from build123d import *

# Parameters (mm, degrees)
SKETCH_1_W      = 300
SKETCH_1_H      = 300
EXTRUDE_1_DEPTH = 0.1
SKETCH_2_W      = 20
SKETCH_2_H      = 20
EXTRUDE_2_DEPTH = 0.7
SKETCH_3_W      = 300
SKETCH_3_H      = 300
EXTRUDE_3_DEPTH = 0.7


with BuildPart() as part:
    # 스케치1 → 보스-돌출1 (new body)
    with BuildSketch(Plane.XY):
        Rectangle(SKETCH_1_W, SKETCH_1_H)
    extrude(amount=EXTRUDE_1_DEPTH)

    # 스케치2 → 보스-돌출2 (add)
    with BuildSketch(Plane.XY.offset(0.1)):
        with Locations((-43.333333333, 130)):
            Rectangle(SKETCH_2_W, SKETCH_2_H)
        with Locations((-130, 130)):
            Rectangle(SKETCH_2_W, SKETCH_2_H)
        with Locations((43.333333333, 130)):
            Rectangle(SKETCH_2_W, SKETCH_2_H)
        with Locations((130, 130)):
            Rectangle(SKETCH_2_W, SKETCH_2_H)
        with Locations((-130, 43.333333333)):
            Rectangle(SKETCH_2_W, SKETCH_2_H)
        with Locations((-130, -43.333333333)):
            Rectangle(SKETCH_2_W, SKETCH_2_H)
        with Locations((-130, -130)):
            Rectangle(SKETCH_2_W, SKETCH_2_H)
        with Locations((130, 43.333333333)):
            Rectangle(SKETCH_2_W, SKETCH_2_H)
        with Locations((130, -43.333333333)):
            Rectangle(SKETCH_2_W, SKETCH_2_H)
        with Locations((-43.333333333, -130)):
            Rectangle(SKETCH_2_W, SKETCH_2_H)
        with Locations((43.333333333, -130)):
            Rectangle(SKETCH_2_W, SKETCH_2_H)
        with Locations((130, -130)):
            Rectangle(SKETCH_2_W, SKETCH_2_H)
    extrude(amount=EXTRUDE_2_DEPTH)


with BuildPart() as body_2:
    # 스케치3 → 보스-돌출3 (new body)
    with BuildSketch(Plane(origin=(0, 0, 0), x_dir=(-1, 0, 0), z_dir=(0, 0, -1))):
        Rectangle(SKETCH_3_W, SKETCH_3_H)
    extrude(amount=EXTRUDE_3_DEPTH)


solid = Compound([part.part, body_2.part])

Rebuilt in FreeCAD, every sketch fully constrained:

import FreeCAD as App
import Part
import Sketcher
from FreeCAD import Vector
Q = App.Units.Quantity

doc = App.newDocument("Part")
body = doc.addObject("PartDesign::Body", "Body")

# Sketch on XY plane
sketch1 = body.newObject("Sketcher::SketchObject", "Sketch")
sketch1.AttachmentSupport = (doc.getObject("XY_Plane"), [""])
sketch1.MapMode = "FlatFace"
sketch1.addGeometry([
    Part.LineSegment(Vector(-150, 150, 0), Vector(-150, -150, 0)),
    Part.LineSegment(Vector(-150, -150, 0), Vector(150, -150, 0)),
    Part.LineSegment(Vector(150, -150, 0), Vector(150, 150, 0)),
    Part.LineSegment(Vector(150, 150, 0), Vector(-150, 150, 0)),
], False)
sketch1.addConstraint([
    Sketcher.Constraint("Coincident", 0, 2, 1, 1),
    Sketcher.Constraint("Coincident", 1, 2, 2, 1),
    Sketcher.Constraint("Coincident", 2, 2, 3, 1),
    Sketcher.Constraint("Coincident", 3, 2, 0, 1),
    Sketcher.Constraint("Vertical", 0),
    Sketcher.Constraint("Horizontal", 1),
    Sketcher.Constraint("Vertical", 2),
    Sketcher.Constraint("Horizontal", 3),
    Sketcher.Constraint("Symmetric", 0, 2, 2, 2, -1, 1),
    Sketcher.Constraint("Equal", 3, 0),
    Sketcher.Constraint("DistanceX", 1, 1, 1, 2, Q("300 mm")),
])
pad1 = body.newObject("PartDesign::Pad", "Pad")
pad1.Profile = sketch1
pad1.Length = 0.1

# Sketch on XY plane
sketch2 = body.newObject("Sketcher::SketchObject", "Sketch001")
sketch2.AttachmentSupport = (doc.getObject("XY_Plane"), [""])
sketch2.MapMode = "FlatFace"
sketch2.AttachmentOffset = App.Placement(Vector(0, 0, 0.1), App.Rotation())
sketch2.addGeometry([
    Part.LineSegment(Vector(-53, 140, 0), Vector(-53, 120, 0)),  # 0
    Part.LineSegment(Vector(-53, 120, 0), Vector(-33, 120, 0)),  # 1
    Part.LineSegment(Vector(-33, 120, 0), Vector(-33, 140, 0)),  # 2
    Part.LineSegment(Vector(-33, 140, 0), Vector(-53, 140, 0)),  # 3
    Part.LineSegment(Vector(-140, 140, 0), Vector(-140, 120, 0)),  # 4
    Part.LineSegment(Vector(-140, 120, 0), Vector(-120, 120, 0)),  # 5
    Part.LineSegment(Vector(-120, 120, 0), Vector(-120, 140, 0)),  # 6
    Part.LineSegment(Vector(-120, 140, 0), Vector(-140, 140, 0)),  # 7
    Part.LineSegment(Vector(33, 140, 0), Vector(33, 120, 0)),  # 8
    Part.LineSegment(Vector(33, 120, 0), Vector(53, 120, 0)),  # 9
    Part.LineSegment(Vector(53, 120, 0), Vector(53, 140, 0)),  # 10
    Part.LineSegment(Vector(53, 140, 0), Vector(33, 140, 0)),  # 11
    Part.LineSegment(Vector(120, 140, 0), Vector(120, 120, 0)),  # 12
    Part.LineSegment(Vector(120, 120, 0), Vector(140, 120, 0)),  # 13
    Part.LineSegment(Vector(140, 120, 0), Vector(140, 140, 0)),  # 14
    Part.LineSegment(Vector(140, 140, 0), Vector(120, 140, 0)),  # 15
    Part.LineSegment(Vector(-140, 53, 0), Vector(-140, 33, 0)),  # 16
    Part.LineSegment(Vector(-140, 33, 0), Vector(-120, 33, 0)),  # 17
    Part.LineSegment(Vector(-120, 33, 0), Vector(-120, 53, 0)),  # 18
    Part.LineSegment(Vector(-120, 53, 0), Vector(-140, 53, 0)),  # 19
    Part.LineSegment(Vector(-140, -33, 0), Vector(-140, -53, 0)),  # 20
    Part.LineSegment(Vector(-140, -53, 0), Vector(-120, -53, 0)),  # 21
    Part.LineSegment(Vector(-120, -53, 0), Vector(-120, -33, 0)),  # 22
    Part.LineSegment(Vector(-120, -33, 0), Vector(-140, -33, 0)),  # 23
    Part.LineSegment(Vector(-140, -120, 0), Vector(-140, -140, 0)),  # 24
    Part.LineSegment(Vector(-140, -140, 0), Vector(-120, -140, 0)),  # 25
    Part.LineSegment(Vector(-120, -140, 0), Vector(-120, -120, 0)),  # 26
    Part.LineSegment(Vector(-120, -120, 0), Vector(-140, -120, 0)),  # 27
    Part.LineSegment(Vector(120, 53, 0), Vector(120, 33, 0)),  # 28
    Part.LineSegment(Vector(120, 33, 0), Vector(140, 33, 0)),  # 29
    Part.LineSegment(Vector(140, 33, 0), Vector(140, 53, 0)),  # 30
    Part.LineSegment(Vector(140, 53, 0), Vector(120, 53, 0)),  # 31
    Part.LineSegment(Vector(120, -33, 0), Vector(120, -53, 0)),  # 32
    Part.LineSegment(Vector(120, -53, 0), Vector(140, -53, 0)),  # 33
    Part.LineSegment(Vector(140, -53, 0), Vector(140, -33, 0)),  # 34
    Part.LineSegment(Vector(140, -33, 0), Vector(120, -33, 0)),  # 35
    Part.LineSegment(Vector(-53, -120, 0), Vector(-53, -140, 0)),  # 36
    Part.LineSegment(Vector(-53, -140, 0), Vector(-33, -140, 0)),  # 37
    Part.LineSegment(Vector(-33, -140, 0), Vector(-33, -120, 0)),  # 38
    Part.LineSegment(Vector(-33, -120, 0), Vector(-53, -120, 0)),  # 39
    Part.LineSegment(Vector(33, -120, 0), Vector(33, -140, 0)),  # 40
    Part.LineSegment(Vector(33, -140, 0), Vector(53, -140, 0)),  # 41
    Part.LineSegment(Vector(53, -140, 0), Vector(53, -120, 0)),  # 42
    Part.LineSegment(Vector(53, -120, 0), Vector(33, -120, 0)),  # 43
    Part.LineSegment(Vector(120, -120, 0), Vector(120, -140, 0)),  # 44
    Part.LineSegment(Vector(120, -140, 0), Vector(140, -140, 0)),  # 45
    Part.LineSegment(Vector(140, -140, 0), Vector(140, -120, 0)),  # 46
    Part.LineSegment(Vector(140, -120, 0), Vector(120, -120, 0)),  # 47
], False)
sketch2.addConstraint([
    Sketcher.Constraint("Coincident", 0, 2, 1, 1),
    Sketcher.Constraint("Coincident", 1, 2, 2, 1),
    Sketcher.Constraint("Coincident", 2, 2, 3, 1),
    Sketcher.Constraint("Coincident", 3, 2, 0, 1),
    Sketcher.Constraint("Coincident", 4, 2, 5, 1),
    Sketcher.Constraint("Coincident", 5, 2, 6, 1),
    Sketcher.Constraint("Coincident", 6, 2, 7, 1),
    Sketcher.Constraint("Coincident", 7, 2, 4, 1),
    Sketcher.Constraint("Coincident", 8, 2, 9, 1),
    Sketcher.Constraint("Coincident", 9, 2, 10, 1),
    Sketcher.Constraint("Coincident", 10, 2, 11, 1),
    Sketcher.Constraint("Coincident", 11, 2, 8, 1),
    Sketcher.Constraint("Coincident", 12, 2, 13, 1),
    Sketcher.Constraint("Coincident", 13, 2, 14, 1),
    Sketcher.Constraint("Coincident", 14, 2, 15, 1),
    Sketcher.Constraint("Coincident", 15, 2, 12, 1),
    Sketcher.Constraint("Coincident", 16, 2, 17, 1),
    Sketcher.Constraint("Coincident", 17, 2, 18, 1),
    Sketcher.Constraint("Coincident", 18, 2, 19, 1),
    Sketcher.Constraint("Coincident", 19, 2, 16, 1),
    Sketcher.Constraint("Coincident", 20, 2, 21, 1),
    Sketcher.Constraint("Coincident", 21, 2, 22, 1),
    Sketcher.Constraint("Coincident", 22, 2, 23, 1),
    Sketcher.Constraint("Coincident", 23, 2, 20, 1),
    Sketcher.Constraint("Coincident", 24, 2, 25, 1),
    Sketcher.Constraint("Coincident", 25, 2, 26, 1),
    Sketcher.Constraint("Coincident", 26, 2, 27, 1),
    Sketcher.Constraint("Coincident", 27, 2, 24, 1),
    Sketcher.Constraint("Coincident", 28, 2, 29, 1),
    Sketcher.Constraint("Coincident", 29, 2, 30, 1),
    Sketcher.Constraint("Coincident", 30, 2, 31, 1),
    Sketcher.Constraint("Coincident", 31, 2, 28, 1),
    Sketcher.Constraint("Coincident", 32, 2, 33, 1),
    Sketcher.Constraint("Coincident", 33, 2, 34, 1),
    Sketcher.Constraint("Coincident", 34, 2, 35, 1),
    Sketcher.Constraint("Coincident", 35, 2, 32, 1),
    Sketcher.Constraint("Coincident", 36, 2, 37, 1),
    Sketcher.Constraint("Coincident", 37, 2, 38, 1),
    Sketcher.Constraint("Coincident", 38, 2, 39, 1),
    Sketcher.Constraint("Coincident", 39, 2, 36, 1),
    Sketcher.Constraint("Coincident", 40, 2, 41, 1),
    Sketcher.Constraint("Coincident", 41, 2, 42, 1),
    Sketcher.Constraint("Coincident", 42, 2, 43, 1),
    Sketcher.Constraint("Coincident", 43, 2, 40, 1),
    Sketcher.Constraint("Coincident", 44, 2, 45, 1),
    Sketcher.Constraint("Coincident", 45, 2, 46, 1),
    Sketcher.Constraint("Coincident", 46, 2, 47, 1),
    Sketcher.Constraint("Coincident", 47, 2, 44, 1),
    Sketcher.Constraint("Vertical", 0),
    Sketcher.Constraint("Horizontal", 1),
    Sketcher.Constraint("Vertical", 2),
    Sketcher.Constraint("Horizontal", 3),
    Sketcher.Constraint("Vertical", 4),
    Sketcher.Constraint("Horizontal", 5),
    Sketcher.Constraint("Vertical", 6),
    Sketcher.Constraint("Horizontal", 7),
    Sketcher.Constraint("Vertical", 8),
    Sketcher.Constraint("Horizontal", 9),
    Sketcher.Constraint("Vertical", 10),
    Sketcher.Constraint("Horizontal", 11),
    Sketcher.Constraint("Vertical", 12),
    Sketcher.Constraint("Horizontal", 13),
    Sketcher.Constraint("Vertical", 14),
    Sketcher.Constraint("Horizontal", 15),
    Sketcher.Constraint("Vertical", 16),
    Sketcher.Constraint("Horizontal", 17),
    Sketcher.Constraint("Vertical", 18),
    Sketcher.Constraint("Horizontal", 19),
    Sketcher.Constraint("Vertical", 20),
    Sketcher.Constraint("Horizontal", 21),
    Sketcher.Constraint("Vertical", 22),
    Sketcher.Constraint("Horizontal", 23),
    Sketcher.Constraint("Vertical", 24),
    Sketcher.Constraint("Horizontal", 25),
    Sketcher.Constraint("Vertical", 26),
    Sketcher.Constraint("Horizontal", 27),
    Sketcher.Constraint("Vertical", 28),
    Sketcher.Constraint("Horizontal", 29),
    Sketcher.Constraint("Vertical", 30),
    Sketcher.Constraint("Horizontal", 31),
    Sketcher.Constraint("Vertical", 32),
    Sketcher.Constraint("Horizontal", 33),
    Sketcher.Constraint("Vertical", 34),
    Sketcher.Constraint("Horizontal", 35),
    Sketcher.Constraint("Vertical", 36),
    Sketcher.Constraint("Horizontal", 37),
    Sketcher.Constraint("Vertical", 38),
    Sketcher.Constraint("Horizontal", 39),
    Sketcher.Constraint("Vertical", 40),
    Sketcher.Constraint("Horizontal", 41),
    Sketcher.Constraint("Vertical", 42),
    Sketcher.Constraint("Horizontal", 43),
    Sketcher.Constraint("Vertical", 44),
    Sketcher.Constraint("Horizontal", 45),
    Sketcher.Constraint("Vertical", 46),
    Sketcher.Constraint("Horizontal", 47),
    Sketcher.Constraint("Symmetric", 14, 2, 24, 2, -1, 1),
    Sketcher.Constraint("Symmetric", 12, 2, 26, 2, -1, 1),
    Sketcher.Constraint("Symmetric", 22, 2, 28, 2, -1, 1),
    Sketcher.Constraint("Symmetric", 20, 2, 30, 2, -1, 1),
    Sketcher.Constraint("Symmetric", 18, 2, 32, 2, -1, 1),
    Sketcher.Constraint("Symmetric", 16, 2, 34, 2, -1, 1),
    Sketcher.Constraint("Symmetric", 10, 2, 36, 2, -1, 1),
    Sketcher.Constraint("Symmetric", 8, 2, 38, 2, -1, 1),
    Sketcher.Constraint("Symmetric", 2, 2, 40, 2, -1, 1),
    Sketcher.Constraint("Symmetric", 0, 2, 42, 2, -1, 1),
    Sketcher.Constraint("Symmetric", 6, 2, 44, 2, -1, 1),
    Sketcher.Constraint("Symmetric", 4, 2, 46, 2, -1, 1),
    Sketcher.Constraint("Symmetric", 1, 2, 8, 2, -2),
    Sketcher.Constraint("Symmetric", 3, 2, 10, 2, -2),
    Sketcher.Constraint("Symmetric", 5, 2, 12, 2, -2),
    Sketcher.Constraint("Symmetric", 7, 2, 14, 2, -2),
    Sketcher.Constraint("Symmetric", 17, 2, 28, 2, -2),
    Sketcher.Constraint("Symmetric", 19, 2, 30, 2, -2),
    Sketcher.Constraint("Horizontal", 1, 2, 4, 2),
    Sketcher.Constraint("Horizontal", 3, 2, 6, 2),
    Sketcher.Constraint("Vertical", 7, 2, 16, 2),
    Sketcher.Constraint("Vertical", 6, 2, 17, 2),
    Sketcher.Constraint("Equal", 3, 5),
    Sketcher.Constraint("Equal", 47, 0),
    Sketcher.Constraint("Equal", 14, 16),
    Sketcher.Constraint("DistanceX", 1, 1, 1, 2, Q("20 mm")),
    Sketcher.Constraint("DistanceY", -1, 1, 0, 2, Q("120 mm")),
    Sketcher.Constraint("DistanceX", 4, 2, -1, 1, Q("140 mm")),
    Sketcher.Constraint("DistanceX", 0, 2, -1, 1, Q("53.333333 mm")),
    Sketcher.Constraint("DistanceY", -1, 1, 16, 2, Q("33.333333 mm")),
])
pad2 = body.newObject("PartDesign::Pad", "Pad001")
pad2.Profile = sketch2
pad2.Length = 0.7
body2 = doc.addObject("PartDesign::Body", "Body001")

# Sketch on XY plane
sketch3 = body2.newObject("Sketcher::SketchObject", "Sketch002")
sketch3.AttachmentSupport = (doc.getObject("XY_Plane001"), [""])
sketch3.MapMode = "FlatFace"
sketch3.addGeometry([
    Part.LineSegment(Vector(150, 150, 0), Vector(150, -150, 0)),
    Part.LineSegment(Vector(150, -150, 0), Vector(-150, -150, 0)),
    Part.LineSegment(Vector(-150, -150, 0), Vector(-150, 150, 0)),
    Part.LineSegment(Vector(-150, 150, 0), Vector(150, 150, 0)),
], False)
sketch3.addConstraint([
    Sketcher.Constraint("Coincident", 0, 2, 1, 1),
    Sketcher.Constraint("Coincident", 1, 2, 2, 1),
    Sketcher.Constraint("Coincident", 2, 2, 3, 1),
    Sketcher.Constraint("Coincident", 3, 2, 0, 1),
    Sketcher.Constraint("Vertical", 0),
    Sketcher.Constraint("Horizontal", 1),
    Sketcher.Constraint("Vertical", 2),
    Sketcher.Constraint("Horizontal", 3),
    Sketcher.Constraint("Symmetric", 0, 2, 2, 2, -1, 1),
    Sketcher.Constraint("Equal", 3, 0),
    Sketcher.Constraint("DistanceX", 1, 2, 1, 1, Q("300 mm")),
])
pad3 = body2.newObject("PartDesign::Pad", "Pad002")
pad3.Profile = sketch3
pad3.Length = 0.7
pad3.Reversed = True

doc.recompute()
